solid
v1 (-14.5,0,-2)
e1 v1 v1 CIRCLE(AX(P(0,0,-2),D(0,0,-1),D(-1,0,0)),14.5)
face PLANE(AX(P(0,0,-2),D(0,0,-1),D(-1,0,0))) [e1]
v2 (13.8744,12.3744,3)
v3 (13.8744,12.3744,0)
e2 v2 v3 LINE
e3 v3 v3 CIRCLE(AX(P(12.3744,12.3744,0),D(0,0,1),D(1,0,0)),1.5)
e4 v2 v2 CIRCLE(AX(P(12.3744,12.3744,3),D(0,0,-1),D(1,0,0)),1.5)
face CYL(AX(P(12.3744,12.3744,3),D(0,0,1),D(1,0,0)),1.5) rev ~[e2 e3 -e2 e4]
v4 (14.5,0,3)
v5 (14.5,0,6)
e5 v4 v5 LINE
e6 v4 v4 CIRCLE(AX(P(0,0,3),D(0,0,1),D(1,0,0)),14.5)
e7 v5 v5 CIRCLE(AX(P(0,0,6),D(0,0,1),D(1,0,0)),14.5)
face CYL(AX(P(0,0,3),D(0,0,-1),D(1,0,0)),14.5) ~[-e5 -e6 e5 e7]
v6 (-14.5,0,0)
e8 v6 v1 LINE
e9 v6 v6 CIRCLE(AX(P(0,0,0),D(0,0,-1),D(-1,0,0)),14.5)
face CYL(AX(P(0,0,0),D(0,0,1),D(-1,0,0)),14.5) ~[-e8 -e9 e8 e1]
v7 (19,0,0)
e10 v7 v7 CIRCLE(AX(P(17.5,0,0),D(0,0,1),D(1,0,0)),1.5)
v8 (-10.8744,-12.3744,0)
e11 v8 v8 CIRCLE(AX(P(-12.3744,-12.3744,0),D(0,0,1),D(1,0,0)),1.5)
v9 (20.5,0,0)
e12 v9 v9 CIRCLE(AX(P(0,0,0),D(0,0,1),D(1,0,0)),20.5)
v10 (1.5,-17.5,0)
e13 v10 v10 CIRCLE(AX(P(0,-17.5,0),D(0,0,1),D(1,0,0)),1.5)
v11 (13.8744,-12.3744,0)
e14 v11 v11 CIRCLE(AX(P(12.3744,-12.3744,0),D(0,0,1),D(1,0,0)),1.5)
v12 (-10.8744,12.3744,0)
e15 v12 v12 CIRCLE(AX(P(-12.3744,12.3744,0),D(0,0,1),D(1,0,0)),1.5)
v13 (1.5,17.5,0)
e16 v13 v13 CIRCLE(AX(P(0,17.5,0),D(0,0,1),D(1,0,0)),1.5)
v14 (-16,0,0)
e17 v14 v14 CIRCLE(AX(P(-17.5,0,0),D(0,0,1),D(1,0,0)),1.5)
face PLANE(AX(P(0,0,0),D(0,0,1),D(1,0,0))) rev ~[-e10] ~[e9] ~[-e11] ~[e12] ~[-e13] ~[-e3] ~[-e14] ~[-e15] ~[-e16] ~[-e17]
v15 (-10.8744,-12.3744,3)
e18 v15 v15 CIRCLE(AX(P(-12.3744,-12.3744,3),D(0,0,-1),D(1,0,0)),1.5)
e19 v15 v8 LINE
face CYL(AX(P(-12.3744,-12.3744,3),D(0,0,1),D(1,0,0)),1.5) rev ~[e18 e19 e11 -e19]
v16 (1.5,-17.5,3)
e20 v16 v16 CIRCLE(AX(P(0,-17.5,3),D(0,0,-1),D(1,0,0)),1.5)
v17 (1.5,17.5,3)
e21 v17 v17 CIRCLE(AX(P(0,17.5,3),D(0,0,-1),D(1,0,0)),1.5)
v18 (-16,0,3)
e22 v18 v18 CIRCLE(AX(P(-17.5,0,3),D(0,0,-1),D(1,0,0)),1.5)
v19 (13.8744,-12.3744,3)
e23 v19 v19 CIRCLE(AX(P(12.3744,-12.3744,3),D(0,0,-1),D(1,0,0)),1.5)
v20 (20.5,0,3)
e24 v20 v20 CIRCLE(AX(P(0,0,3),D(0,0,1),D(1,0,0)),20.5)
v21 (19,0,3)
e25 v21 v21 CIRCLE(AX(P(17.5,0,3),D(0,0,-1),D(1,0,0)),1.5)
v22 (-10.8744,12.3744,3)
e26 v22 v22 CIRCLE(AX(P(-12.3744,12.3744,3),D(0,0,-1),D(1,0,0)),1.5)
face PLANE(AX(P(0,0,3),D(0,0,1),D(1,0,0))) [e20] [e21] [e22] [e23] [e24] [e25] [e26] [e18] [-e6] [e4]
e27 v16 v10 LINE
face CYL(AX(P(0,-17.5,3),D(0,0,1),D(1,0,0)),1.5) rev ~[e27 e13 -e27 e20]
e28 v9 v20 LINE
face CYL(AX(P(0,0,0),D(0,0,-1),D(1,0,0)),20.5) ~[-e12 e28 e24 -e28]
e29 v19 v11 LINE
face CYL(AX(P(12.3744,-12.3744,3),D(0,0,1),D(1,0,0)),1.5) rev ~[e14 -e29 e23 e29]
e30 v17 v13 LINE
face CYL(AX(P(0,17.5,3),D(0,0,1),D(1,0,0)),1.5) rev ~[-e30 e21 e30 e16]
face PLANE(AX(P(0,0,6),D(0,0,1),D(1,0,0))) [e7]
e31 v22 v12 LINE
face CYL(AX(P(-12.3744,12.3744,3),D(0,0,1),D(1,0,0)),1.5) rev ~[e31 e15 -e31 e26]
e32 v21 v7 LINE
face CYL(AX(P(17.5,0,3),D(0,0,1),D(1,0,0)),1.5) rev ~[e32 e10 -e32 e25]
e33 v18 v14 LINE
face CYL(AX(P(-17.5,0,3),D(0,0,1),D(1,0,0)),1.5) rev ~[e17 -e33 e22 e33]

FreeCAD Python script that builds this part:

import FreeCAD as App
import Part
import Sketcher
from FreeCAD import Vector

doc = App.newDocument("Part")
body = doc.addObject("PartDesign::Body", "Body")

sketch1 = doc.addObject("Sketcher::SketchObject", "Sketch")
body.addObject(sketch1)
sketch1.AttachmentSupport = (doc.XY_Plane, [""])
sketch1.MapMode = "FlatFace"
sketch1.addGeometry(Part.Circle(Vector(0, 0, 0), Vector(0, 0, 1), 20), False)
sketch1.addConstraint([
    Sketcher.Constraint("Coincident", 0, 3, -1, 1),
    Sketcher.Constraint("Diameter", 0, 41.0),
])
pad1 = doc.addObject("PartDesign::Pad", "Pad")
body.addObject(pad1)
pad1.Profile = sketch1
pad1.Length = 3

sketch2 = doc.addObject("Sketcher::SketchObject", "Sketch001")
body.addObject(sketch2)
sketch2.AttachmentSupport = (doc.XY_Plane, [""])
sketch2.MapMode = "FlatFace"
sketch2.AttachmentOffset = App.Placement(Vector(0, 0, 3), App.Rotation())
sketch2.addGeometry(Part.Circle(Vector(0, 0, 0), Vector(0, 0, 1), 14), False)
sketch2.addConstraint([
    Sketcher.Constraint("Coincident", 0, 3, -1, 1),
    Sketcher.Constraint("Diameter", 0, 29.0),
])
pad2 = doc.addObject("PartDesign::Pad", "Pad001")
body.addObject(pad2)
pad2.Profile = sketch2
pad2.Length = 3

sketch3 = doc.addObject("Sketcher::SketchObject", "Sketch002")
body.addObject(sketch3)
sketch3.AttachmentSupport = (doc.XY_Plane, [""])
sketch3.MapMode = "FlatFace"
sketch3.addGeometry(Part.Circle(Vector(0, 0, 0), Vector(0, 0, 1), 14), False)
sketch3.addConstraint([
    Sketcher.Constraint("Coincident", 0, 3, -1, 1),
    Sketcher.Constraint("Diameter", 0, 29.0),
])
pad3 = doc.addObject("PartDesign::Pad", "Pad002")
body.addObject(pad3)
pad3.Profile = sketch3
pad3.Length = 2
pad3.Reversed = True

sketch4 = doc.addObject("Sketcher::SketchObject", "Sketch003")
body.addObject(sketch4)
sketch4.AttachmentSupport = (doc.XY_Plane, [""])
sketch4.MapMode = "FlatFace"
sketch4.AttachmentOffset = App.Placement(Vector(0, 0, 3), App.Rotation())
sketch4.addGeometry([
    Part.Circle(Vector(17.5, 0, 0), Vector(0, 0, 1), 1.5),
    Part.Circle(Vector(12.4, 12.4, 0), Vector(0, 0, 1), 1.5),
    Part.Circle(Vector(12.4, -12.4, 0), Vector(0, 0, 1), 1.5),
    Part.Circle(Vector(0, 17.5, 0), Vector(0, 0, 1), 1.5),
    Part.Circle(Vector(0, -17.5, 0), Vector(0, 0, 1), 1.5),
    Part.Circle(Vector(-12.4, 12.4, 0), Vector(0, 0, 1), 1.5),
    Part.Circle(Vector(-12.4, -12.4, 0), Vector(0, 0, 1), 1.5),
    Part.Circle(Vector(-17.5, 0, 0), Vector(0, 0, 1), 1.5),
], False)
sketch4.addConstraint([
    Sketcher.Constraint("Equal", 0, 1),
    Sketcher.Constraint("Equal", 1, 2),
    Sketcher.Constraint("Equal", 2, 3),
    Sketcher.Constraint("Equal", 3, 4),
    Sketcher.Constraint("Equal", 4, 5),
    Sketcher.Constraint("Equal", 5, 6),
    Sketcher.Constraint("Equal", 6, 7),
    Sketcher.Constraint("Symmetric", 3, 3, 4, 3, -1, 1),
    Sketcher.Constraint("Symmetric", 2, 3, 5, 3, -1, 1),
    Sketcher.Constraint("Symmetric", 1, 3, 6, 3, -1, 1),
    Sketcher.Constraint("Symmetric", 0, 3, 7, 3, -1, 1),
    Sketcher.Constraint("Symmetric", 1, 3, 5, 3, -2),
    Sketcher.Constraint("PointOnObject", 0, 3, -1),
    Sketcher.Constraint("PointOnObject", 3, 3, -2),
    Sketcher.Constraint("Diameter", 0, 3.0),
    Sketcher.Constraint("DistanceY", 4, 3, 3, 3, 35.0),
    Sketcher.Constraint("DistanceX", -1, 1, 0, 3, 17.5),
    Sketcher.Constraint("DistanceX", -1, 1, 1, 3, 12.3744),
    Sketcher.Constraint("DistanceY", -1, 1, 1, 3, 12.3744),
])
pocket1 = doc.addObject("PartDesign::Pocket", "Pocket")
body.addObject(pocket1)
pocket1.Profile = sketch4
pocket1.Type = "ThroughAll"

doc.recompute()
